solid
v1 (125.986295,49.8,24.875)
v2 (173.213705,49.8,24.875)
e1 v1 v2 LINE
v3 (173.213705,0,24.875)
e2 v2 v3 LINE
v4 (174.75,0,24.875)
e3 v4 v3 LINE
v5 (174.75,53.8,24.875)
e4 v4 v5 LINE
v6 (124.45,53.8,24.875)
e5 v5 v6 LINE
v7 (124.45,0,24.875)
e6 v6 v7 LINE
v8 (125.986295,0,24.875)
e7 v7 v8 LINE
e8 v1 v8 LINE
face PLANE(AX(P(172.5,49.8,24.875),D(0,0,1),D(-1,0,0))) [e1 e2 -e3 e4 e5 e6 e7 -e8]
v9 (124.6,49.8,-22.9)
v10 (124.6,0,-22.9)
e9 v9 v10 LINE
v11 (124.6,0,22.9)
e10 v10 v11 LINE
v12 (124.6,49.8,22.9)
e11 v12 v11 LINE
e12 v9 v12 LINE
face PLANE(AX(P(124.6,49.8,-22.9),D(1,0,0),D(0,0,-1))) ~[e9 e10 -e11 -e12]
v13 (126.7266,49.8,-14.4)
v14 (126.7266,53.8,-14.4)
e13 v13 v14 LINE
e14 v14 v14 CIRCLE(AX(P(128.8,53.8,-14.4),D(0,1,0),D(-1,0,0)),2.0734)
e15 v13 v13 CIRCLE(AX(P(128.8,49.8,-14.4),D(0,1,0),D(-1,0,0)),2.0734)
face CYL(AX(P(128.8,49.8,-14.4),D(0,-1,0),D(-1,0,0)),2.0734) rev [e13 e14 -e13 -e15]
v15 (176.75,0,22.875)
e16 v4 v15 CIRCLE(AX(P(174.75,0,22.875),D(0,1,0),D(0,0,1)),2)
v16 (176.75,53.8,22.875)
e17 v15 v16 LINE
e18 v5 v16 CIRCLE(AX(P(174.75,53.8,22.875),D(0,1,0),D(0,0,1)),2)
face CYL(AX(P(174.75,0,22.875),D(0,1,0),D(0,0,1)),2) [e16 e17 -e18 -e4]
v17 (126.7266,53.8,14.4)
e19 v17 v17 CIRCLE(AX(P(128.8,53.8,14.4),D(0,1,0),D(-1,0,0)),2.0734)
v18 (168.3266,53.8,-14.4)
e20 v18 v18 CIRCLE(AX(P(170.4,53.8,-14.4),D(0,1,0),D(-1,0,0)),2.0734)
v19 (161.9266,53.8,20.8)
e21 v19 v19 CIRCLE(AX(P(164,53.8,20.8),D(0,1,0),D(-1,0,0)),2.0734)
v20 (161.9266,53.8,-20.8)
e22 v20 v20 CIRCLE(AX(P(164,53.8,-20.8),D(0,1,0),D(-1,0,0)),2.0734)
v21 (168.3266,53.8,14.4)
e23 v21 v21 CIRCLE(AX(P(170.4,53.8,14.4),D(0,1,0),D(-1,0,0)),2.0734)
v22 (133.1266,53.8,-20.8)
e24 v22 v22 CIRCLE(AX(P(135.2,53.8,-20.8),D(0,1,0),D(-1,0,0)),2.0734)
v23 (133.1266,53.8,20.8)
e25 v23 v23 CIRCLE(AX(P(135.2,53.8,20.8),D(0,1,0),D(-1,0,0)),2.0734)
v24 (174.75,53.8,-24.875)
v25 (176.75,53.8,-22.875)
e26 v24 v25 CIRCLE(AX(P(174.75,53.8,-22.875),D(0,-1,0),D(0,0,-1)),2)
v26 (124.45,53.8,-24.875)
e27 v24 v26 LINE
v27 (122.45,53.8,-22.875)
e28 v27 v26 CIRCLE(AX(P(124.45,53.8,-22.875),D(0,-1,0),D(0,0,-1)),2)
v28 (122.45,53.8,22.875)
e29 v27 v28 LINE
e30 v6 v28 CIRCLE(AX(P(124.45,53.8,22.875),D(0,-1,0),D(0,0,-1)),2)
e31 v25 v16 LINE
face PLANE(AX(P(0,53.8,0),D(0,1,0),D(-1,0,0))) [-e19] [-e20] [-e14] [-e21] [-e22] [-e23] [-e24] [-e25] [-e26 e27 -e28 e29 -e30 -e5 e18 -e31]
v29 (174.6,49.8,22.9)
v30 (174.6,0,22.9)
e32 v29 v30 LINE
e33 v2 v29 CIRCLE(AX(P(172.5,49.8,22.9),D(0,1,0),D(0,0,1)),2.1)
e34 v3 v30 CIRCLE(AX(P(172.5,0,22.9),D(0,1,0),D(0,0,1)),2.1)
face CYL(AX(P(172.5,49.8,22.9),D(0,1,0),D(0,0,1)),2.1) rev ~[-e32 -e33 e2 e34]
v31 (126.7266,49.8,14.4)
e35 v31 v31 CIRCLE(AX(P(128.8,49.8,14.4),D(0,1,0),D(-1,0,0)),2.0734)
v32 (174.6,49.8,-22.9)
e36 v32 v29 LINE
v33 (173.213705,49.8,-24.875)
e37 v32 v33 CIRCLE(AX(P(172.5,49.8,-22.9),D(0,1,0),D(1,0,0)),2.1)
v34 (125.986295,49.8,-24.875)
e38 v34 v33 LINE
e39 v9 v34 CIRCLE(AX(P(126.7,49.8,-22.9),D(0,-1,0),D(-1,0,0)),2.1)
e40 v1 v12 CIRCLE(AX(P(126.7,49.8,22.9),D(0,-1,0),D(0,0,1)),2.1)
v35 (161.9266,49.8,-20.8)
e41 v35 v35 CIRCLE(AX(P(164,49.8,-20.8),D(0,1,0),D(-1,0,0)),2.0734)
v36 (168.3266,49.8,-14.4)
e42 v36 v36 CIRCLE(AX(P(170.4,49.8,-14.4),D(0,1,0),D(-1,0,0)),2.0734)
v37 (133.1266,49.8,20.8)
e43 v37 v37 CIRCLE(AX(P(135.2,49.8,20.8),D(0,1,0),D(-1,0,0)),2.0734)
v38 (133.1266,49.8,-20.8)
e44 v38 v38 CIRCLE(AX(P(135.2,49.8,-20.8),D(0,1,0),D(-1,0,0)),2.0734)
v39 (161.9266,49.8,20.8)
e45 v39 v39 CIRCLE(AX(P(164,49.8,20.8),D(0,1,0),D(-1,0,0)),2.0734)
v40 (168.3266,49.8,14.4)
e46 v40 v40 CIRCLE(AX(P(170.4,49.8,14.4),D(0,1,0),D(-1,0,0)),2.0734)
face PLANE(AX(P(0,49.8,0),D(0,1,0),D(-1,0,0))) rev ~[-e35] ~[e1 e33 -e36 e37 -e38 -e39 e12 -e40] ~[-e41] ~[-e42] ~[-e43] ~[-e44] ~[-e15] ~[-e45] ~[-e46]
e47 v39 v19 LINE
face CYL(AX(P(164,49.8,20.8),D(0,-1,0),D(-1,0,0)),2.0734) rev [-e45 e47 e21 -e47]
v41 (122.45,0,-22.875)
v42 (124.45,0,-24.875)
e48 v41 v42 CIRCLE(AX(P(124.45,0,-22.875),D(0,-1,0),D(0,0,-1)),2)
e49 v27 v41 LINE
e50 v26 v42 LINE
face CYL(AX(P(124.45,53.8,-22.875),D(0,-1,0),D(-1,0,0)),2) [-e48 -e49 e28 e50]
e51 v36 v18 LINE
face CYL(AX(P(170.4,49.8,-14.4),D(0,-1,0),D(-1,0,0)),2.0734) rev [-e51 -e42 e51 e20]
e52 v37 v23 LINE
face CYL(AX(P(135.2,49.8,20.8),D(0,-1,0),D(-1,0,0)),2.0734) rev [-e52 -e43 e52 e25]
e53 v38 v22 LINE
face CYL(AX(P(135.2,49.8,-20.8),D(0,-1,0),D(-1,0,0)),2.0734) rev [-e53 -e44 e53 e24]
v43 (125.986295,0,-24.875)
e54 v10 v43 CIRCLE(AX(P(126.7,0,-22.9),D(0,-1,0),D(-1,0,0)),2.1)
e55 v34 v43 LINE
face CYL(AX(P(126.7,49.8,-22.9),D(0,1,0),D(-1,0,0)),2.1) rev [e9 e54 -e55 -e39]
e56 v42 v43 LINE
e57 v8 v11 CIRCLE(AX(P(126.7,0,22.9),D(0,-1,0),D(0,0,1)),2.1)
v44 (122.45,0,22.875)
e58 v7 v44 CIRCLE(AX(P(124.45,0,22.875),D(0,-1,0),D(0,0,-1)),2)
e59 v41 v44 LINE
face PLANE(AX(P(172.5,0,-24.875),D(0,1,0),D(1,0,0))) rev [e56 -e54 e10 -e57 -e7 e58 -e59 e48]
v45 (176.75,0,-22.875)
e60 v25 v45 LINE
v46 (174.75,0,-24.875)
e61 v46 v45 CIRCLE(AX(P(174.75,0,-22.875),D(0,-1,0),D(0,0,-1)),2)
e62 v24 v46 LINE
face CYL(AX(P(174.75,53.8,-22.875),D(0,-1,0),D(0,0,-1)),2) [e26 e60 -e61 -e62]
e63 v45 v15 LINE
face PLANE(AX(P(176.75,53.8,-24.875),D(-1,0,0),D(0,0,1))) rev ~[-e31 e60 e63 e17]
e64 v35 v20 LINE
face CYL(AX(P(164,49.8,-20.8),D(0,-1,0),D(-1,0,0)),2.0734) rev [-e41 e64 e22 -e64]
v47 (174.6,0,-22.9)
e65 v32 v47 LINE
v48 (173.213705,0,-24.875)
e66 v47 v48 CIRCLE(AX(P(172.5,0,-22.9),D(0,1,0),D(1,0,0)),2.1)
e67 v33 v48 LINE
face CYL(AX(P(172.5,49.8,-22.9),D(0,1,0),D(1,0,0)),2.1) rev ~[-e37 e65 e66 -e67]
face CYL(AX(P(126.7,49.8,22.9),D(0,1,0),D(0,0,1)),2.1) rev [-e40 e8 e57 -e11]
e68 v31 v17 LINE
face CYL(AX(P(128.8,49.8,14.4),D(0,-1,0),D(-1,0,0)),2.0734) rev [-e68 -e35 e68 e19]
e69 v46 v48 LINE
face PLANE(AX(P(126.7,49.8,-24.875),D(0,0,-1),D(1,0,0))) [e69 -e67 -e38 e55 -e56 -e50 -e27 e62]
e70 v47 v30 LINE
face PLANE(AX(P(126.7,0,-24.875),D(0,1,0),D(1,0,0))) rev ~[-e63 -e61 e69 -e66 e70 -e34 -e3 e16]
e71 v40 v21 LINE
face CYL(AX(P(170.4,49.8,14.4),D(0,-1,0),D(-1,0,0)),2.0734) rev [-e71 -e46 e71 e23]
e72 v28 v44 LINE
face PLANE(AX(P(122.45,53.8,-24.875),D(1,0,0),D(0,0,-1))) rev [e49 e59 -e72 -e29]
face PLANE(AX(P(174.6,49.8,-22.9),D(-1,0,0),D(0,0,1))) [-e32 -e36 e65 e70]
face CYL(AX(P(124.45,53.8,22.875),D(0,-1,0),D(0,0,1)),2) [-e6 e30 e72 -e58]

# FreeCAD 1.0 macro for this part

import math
import FreeCAD as App
import Part
import Sketcher
from FreeCAD import Vector
Q = App.Units.Quantity


def edges_at(feature, points):
    """Names of the edges that pass closest to the given points."""
    edges = feature.Shape.Edges
    near = lambda p: min(range(len(edges)), key=lambda i: edges[i].distToShape(Part.Vertex(*p))[0])
    return sorted({f"Edge{near(p) + 1}" for p in points})

doc = App.newDocument("Part")
body = doc.addObject("PartDesign::Body", "Body")

sketch1 = body.newObject("Sketcher::SketchObject", "Sketch")
sketch1.AttachmentSupport = (doc.getObject("XZ_Plane"), [""])
sketch1.MapMode = "FlatFace"
sketch1.AttachmentOffset = App.Placement(Vector(0, 0, -49.8), App.Rotation())
sketch1.addGeometry([
    Part.LineSegment(Vector(126.7, 24.875, 0), Vector(172.5, 24.875, 0)),
    Part.ArcOfCircle(Part.Circle(Vector(172.5, 22.9, 0), Vector(0, 0, 1), 1.975), math.radians(0), math.radians(90)),
    Part.LineSegment(Vector(174.475, 22.9, 0), Vector(174.475, -22.9, 0)),
    Part.ArcOfCircle(Part.Circle(Vector(172.5, -22.9, 0), Vector(0, 0, 1), 1.975), math.radians(-90), math.radians(0)),
    Part.LineSegment(Vector(172.5, -24.875, 0), Vector(126.7, -24.875, 0)),
    Part.ArcOfCircle(Part.Circle(Vector(126.7, -22.9, 0), Vector(0, 0, 1), 1.975), math.radians(180), math.radians(270)),
    Part.LineSegment(Vector(124.725, -22.9, 0), Vector(124.725, 22.9, 0)),
    Part.ArcOfCircle(Part.Circle(Vector(126.7, 22.9, 0), Vector(0, 0, 1), 1.975), math.radians(90), math.radians(180)),
    Part.Circle(Vector(164, -20.8, 0), Vector(0, 0, 1), 2.0734),
    Part.Circle(Vector(170.4, -14.4, 0), Vector(0, 0, 1), 2.0734),
    Part.Circle(Vector(164, 20.8, 0), Vector(0, 0, 1), 2.0734),
    Part.Circle(Vector(128.8, 14.4, 0), Vector(0, 0, 1), 2.0734),
    Part.Circle(Vector(135.2, 20.8, 0), Vector(0, 0, 1), 2.0734),
    Part.Circle(Vector(135.2, -20.8, 0), Vector(0, 0, 1), 2.0734),
    Part.Circle(Vector(128.8, -14.4, 0), Vector(0, 0, 1), 2.0734),
    Part.Circle(Vector(170.4, 14.4, 0), Vector(0, 0, 1), 2.0734),
], False)
sketch1.addConstraint([
    Sketcher.Constraint("Tangent", 0, 2, 1, 2),
    Sketcher.Constraint("Tangent", 1, 1, 2, 1),
    Sketcher.Constraint("Tangent", 2, 2, 3, 2),
    Sketcher.Constraint("Tangent", 3, 1, 4, 1),
    Sketcher.Constraint("Tangent", 4, 2, 5, 2),
    Sketcher.Constraint("Tangent", 5, 1, 6, 1),
    Sketcher.Constraint("Tangent", 6, 2, 7, 2),
    Sketcher.Constraint("Tangent", 7, 1, 0, 1),
    Sketcher.Constraint("Horizontal", 0),
    Sketcher.Constraint("Vertical", 2),
    Sketcher.Constraint("Horizontal", 4),
    Sketcher.Constraint("Vertical", 6),
    Sketcher.Constraint("Equal", 1, 3),
    Sketcher.Constraint("Equal", 3, 5),
    Sketcher.Constraint("Equal", 5, 7),
    Sketcher.Constraint("Equal", 8, 9),
    Sketcher.Constraint("Equal", 9, 10),
    Sketcher.Constraint("Equal", 10, 11),
    Sketcher.Constraint("Equal", 11, 12),
    Sketcher.Constraint("Equal", 12, 13),
    Sketcher.Constraint("Equal", 13, 14),
    Sketcher.Constraint("Equal", 14, 15),
    Sketcher.Constraint("Symmetric", 8, 3, 10, 3, -1),
    Sketcher.Constraint("Symmetric", 12, 3, 13, 3, -1),
    Sketcher.Constraint("Symmetric", 11, 3, 14, 3, -1),
    Sketcher.Constraint("Symmetric", 9, 3, 15, 3, -1),
    Sketcher.Constraint("Horizontal", 10, 3, 12, 3),
    Sketcher.Constraint("Horizontal", 9, 3, 14, 3),
    Sketcher.Constraint("Equal", 4, 2),
    Sketcher.Constraint("DistanceX", 0, 1, 0, 2, Q("45.8 mm")),
    Sketcher.Constraint("DistanceX", -1, 1, 8, 3, Q("164 mm")),
    Sketcher.Constraint("Radius", 1, Q("1.975 mm")),
    Sketcher.Constraint("Diameter", 8, Q("4.1468 mm")),
    Sketcher.Constraint("DistanceX", -1, 1, 1, 3, Q("172.5 mm")),
    Sketcher.Constraint("DistanceY", -1, 1, 1, 3, Q("22.9 mm")),
    Sketcher.Constraint("DistanceY", 8, 3, -1, 1, Q("20.8 mm")),
    Sketcher.Constraint("DistanceX", -1, 1, 9, 3, Q("170.4 mm")),
    Sketcher.Constraint("DistanceY", 9, 3, -1, 1, Q("14.4 mm")),
    Sketcher.Constraint("DistanceX", -1, 1, 11, 3, Q("128.8 mm")),
    Sketcher.Constraint("DistanceX", -1, 1, 12, 3, Q("135.2 mm")),
])
pad1 = body.newObject("PartDesign::Pad", "Pad")
pad1.Profile = sketch1
pad1.Length = 4
pad1.Reversed = True

sketch2 = body.newObject("Sketcher::SketchObject", "Sketch001")
sketch2.AttachmentSupport = (doc.getObject("XZ_Plane"), [""])
sketch2.MapMode = "FlatFace"
sketch2.AttachmentOffset = App.Placement(Vector(0, 0, -53.8), App.Rotation())
sketch2.addGeometry([
    Part.ArcOfCircle(Part.Circle(Vector(172.5, -22.9, 0), Vector(0, 0, 1), 1.975), math.radians(-90), math.radians(0)),
    Part.LineSegment(Vector(174.475, -22.9, 0), Vector(174.475, 22.9, 0)),
    Part.ArcOfCircle(Part.Circle(Vector(172.5, 22.9, 0), Vector(0, 0, 1), 1.975), math.radians(0), math.radians(90)),
    Part.LineSegment(Vector(172.5, 24.875, 0), Vector(176.75, 24.875, 0)),
    Part.LineSegment(Vector(176.75, 24.875, 0), Vector(176.75, -24.875, 0)),
    Part.LineSegment(Vector(176.75, -24.875, 0), Vector(172.5, -24.875, 0)),
], False)
sketch2.addConstraint([
    Sketcher.Constraint("Tangent", 0, 2, 1, 1),
    Sketcher.Constraint("Tangent", 1, 2, 2, 1),
    Sketcher.Constraint("Tangent", 2, 2, 3, 1),
    Sketcher.Constraint("Coincident", 3, 2, 4, 1),
    Sketcher.Constraint("Coincident", 4, 2, 5, 1),
    Sketcher.Constraint("Tangent", 5, 2, 0, 1),
    Sketcher.Constraint("Vertical", 1),
    Sketcher.Constraint("Horizontal", 3),
    Sketcher.Constraint("Vertical", 4),
    Sketcher.Constraint("Horizontal", 5),
    Sketcher.Constraint("Equal", 0, 2),
    Sketcher.Constraint("DistanceX", 3, 1, 3, 2, Q("4.25 mm")),
    Sketcher.Constraint("DistanceY", 1, 1, 1, 2, Q("45.8 mm")),
    Sketcher.Constraint("Radius", 0, Q("1.975 mm")),
    Sketcher.Constraint("DistanceX", -1, 1, 0, 3, Q("172.5 mm")),
    Sketcher.Constraint("DistanceY", 0, 3, -1, 1, Q("22.9 mm")),
])
pad2 = body.newObject("PartDesign::Pad", "Pad001")
pad2.Profile = sketch2
pad2.Length = 4

sketch3 = body.newObject("Sketcher::SketchObject", "Sketch002")
sketch3.AttachmentSupport = (doc.getObject("XZ_Plane"), [""])
sketch3.MapMode = "FlatFace"
sketch3.AttachmentOffset = App.Placement(Vector(0, 0, -49.8), App.Rotation())
sketch3.addGeometry([
    Part.ArcOfCircle(Part.Circle(Vector(172.5, -22.9, 0), Vector(0, 0, 1), 2.1), math.radians(-70.131681), math.radians(0)),
    Part.LineSegment(Vector(174.6, -22.9, 0), Vector(174.6, 22.9, 0)),
    Part.ArcOfCircle(Part.Circle(Vector(172.5, 22.9, 0), Vector(0, 0, 1), 2.1), math.radians(0), math.radians(70.131681)),
    Part.LineSegment(Vector(173.213705, 24.875, 0), Vector(176.75, 24.875, 0)),
    Part.LineSegment(Vector(176.75, 24.875, 0), Vector(176.75, -24.875, 0)),
    Part.LineSegment(Vector(176.75, -24.875, 0), Vector(173.213705, -24.875, 0)),
], False)
sketch3.addConstraint([
    Sketcher.Constraint("Tangent", 0, 2, 1, 1),
    Sketcher.Constraint("Tangent", 1, 2, 2, 1),
    Sketcher.Constraint("Coincident", 2, 2, 3, 1),
    Sketcher.Constraint("Coincident", 3, 2, 4, 1),
    Sketcher.Constraint("Coincident", 4, 2, 5, 1),
    Sketcher.Constraint("Coincident", 5, 2, 0, 1),
    Sketcher.Constraint("Vertical", 1),
    Sketcher.Constraint("Horizontal", 3),
    Sketcher.Constraint("Vertical", 4),
    Sketcher.Constraint("Horizontal", 5),
    Sketcher.Constraint("Equal", 0, 2),
    Sketcher.Constraint("Symmetric", 2, 2, 5, 2, -1),
    Sketcher.Constraint("Radius", 0, Q("2.1 mm")),
    Sketcher.Constraint("DistanceX", 2, 3, 3, 2, Q("4.25 mm")),
    Sketcher.Constraint("DistanceY", 1, 1, 1, 2, Q("45.8 mm")),
    Sketcher.Constraint("DistanceY", 4, 2, 4, 1, Q("49.75 mm")),
    Sketcher.Constraint("DistanceX", -1, 1, 0, 3, Q("172.5 mm")),
])
pad3 = body.newObject("PartDesign::Pad", "Pad002")
pad3.Profile = sketch3
pad3.Length = 49.8
doc.recompute()

fillet = body.newObject("PartDesign::Fillet", "Fillet")
fillet.Base = (pad3, edges_at(pad3, [(176.75, 26.9, 24.875), (176.75, 26.9, -24.875)]))
fillet.Radius = 2
doc.recompute()

datumplane = body.newObject("PartDesign::Plane", "DatumPlane")
datumplane.AttachmentSupport = (doc.getObject("YZ_Plane"), [""])
datumplane.MapMode = "FlatFace"
datumplane.AttachmentOffset = App.Placement(Vector(0, 0, 149.6), App.Rotation())
mirrored = body.newObject("PartDesign::Mirrored", "Mirrored")
mirrored.Originals = [pad2, pad3, fillet]
mirrored.MirrorPlane = (datumplane, [""])
body.Tip = mirrored

doc.recompute()
